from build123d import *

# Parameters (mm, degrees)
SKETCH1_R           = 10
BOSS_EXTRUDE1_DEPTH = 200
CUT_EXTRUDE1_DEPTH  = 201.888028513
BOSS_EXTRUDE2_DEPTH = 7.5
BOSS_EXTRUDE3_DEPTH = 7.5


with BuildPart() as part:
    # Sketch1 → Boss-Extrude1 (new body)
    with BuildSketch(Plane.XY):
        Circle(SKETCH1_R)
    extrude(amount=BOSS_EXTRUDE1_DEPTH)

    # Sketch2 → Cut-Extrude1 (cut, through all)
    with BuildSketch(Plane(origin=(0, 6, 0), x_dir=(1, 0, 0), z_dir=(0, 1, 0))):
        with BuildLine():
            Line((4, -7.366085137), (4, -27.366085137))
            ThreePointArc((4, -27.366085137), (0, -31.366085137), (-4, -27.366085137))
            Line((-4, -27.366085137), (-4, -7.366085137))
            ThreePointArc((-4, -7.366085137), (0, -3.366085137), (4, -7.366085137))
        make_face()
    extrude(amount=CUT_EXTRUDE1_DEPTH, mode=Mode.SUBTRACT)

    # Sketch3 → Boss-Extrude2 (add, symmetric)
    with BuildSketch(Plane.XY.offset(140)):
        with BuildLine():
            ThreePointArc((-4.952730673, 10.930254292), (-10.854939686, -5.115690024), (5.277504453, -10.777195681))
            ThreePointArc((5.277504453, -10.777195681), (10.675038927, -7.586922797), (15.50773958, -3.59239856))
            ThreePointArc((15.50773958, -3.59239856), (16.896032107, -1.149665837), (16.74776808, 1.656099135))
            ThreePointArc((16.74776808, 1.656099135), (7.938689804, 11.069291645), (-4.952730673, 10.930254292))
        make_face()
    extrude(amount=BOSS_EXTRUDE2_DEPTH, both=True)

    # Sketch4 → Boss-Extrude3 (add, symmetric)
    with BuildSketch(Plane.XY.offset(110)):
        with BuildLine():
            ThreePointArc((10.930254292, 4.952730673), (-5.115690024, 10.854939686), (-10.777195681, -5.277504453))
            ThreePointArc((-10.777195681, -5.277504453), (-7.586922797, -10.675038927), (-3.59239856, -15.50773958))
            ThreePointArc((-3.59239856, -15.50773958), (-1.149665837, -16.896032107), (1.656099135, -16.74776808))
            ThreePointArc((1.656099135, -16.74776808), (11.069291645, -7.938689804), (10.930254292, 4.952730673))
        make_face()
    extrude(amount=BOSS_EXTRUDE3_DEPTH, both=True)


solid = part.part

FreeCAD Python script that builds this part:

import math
import FreeCAD as App
import Part
import Sketcher
from FreeCAD import Vector

doc = App.newDocument("Part")
body = doc.addObject("PartDesign::Body", "Body")

sketch1 = body.newObject("Sketcher::SketchObject", "Sketch")
sketch1.AttachmentSupport = (doc.getObject("XY_Plane"), [""])
sketch1.MapMode = "FlatFace"
sketch1.addGeometry(Part.Circle(Vector(0, 0, 0), Vector(0, 0, 1), 10), False)
sketch1.addConstraint([
    Sketcher.Constraint("Coincident", 0, 3, -1, 1),
    Sketcher.Constraint("Diameter", 0, 20.0),
])
pad1 = body.newObject("PartDesign::Pad", "Pad")
pad1.Profile = sketch1
pad1.Length = 200

sketch2 = body.newObject("Sketcher::SketchObject", "Sketch001")
sketch2.AttachmentSupport = (doc.getObject("XZ_Plane"), [""])
sketch2.MapMode = "FlatFace"
sketch2.AttachmentOffset = App.Placement(Vector(0, 0, -6), App.Rotation())
sketch2.addGeometry([
    Part.LineSegment(Vector(4, 27.366085, 0), Vector(4, 7.366085, 0)),
    Part.ArcOfCircle(Part.Circle(Vector(0, 7.366085, 0), Vector(0, 0, 1), 4), math.radians(180), math.radians(360)),
    Part.LineSegment(Vector(-4, 7.366085, 0), Vector(-4, 27.366085, 0)),
    Part.ArcOfCircle(Part.Circle(Vector(0, 27.366085, 0), Vector(0, 0, 1), 4), math.radians(0), math.radians(180)),
], False)
sketch2.addConstraint([
    Sketcher.Constraint("Tangent", 0, 2, 1, 2),
    Sketcher.Constraint("Tangent", 1, 1, 2, 1),
    Sketcher.Constraint("Tangent", 2, 2, 3, 2),
    Sketcher.Constraint("Tangent", 3, 1, 0, 1),
    Sketcher.Constraint("Vertical", 0),
    Sketcher.Constraint("Vertical", 2),
    Sketcher.Constraint("PointOnObject", 1, 3, -2),
    Sketcher.Constraint("Radius", 1, 4.0),
    Sketcher.Constraint("DistanceY", 0, 2, 0, 1, 20.0),
    Sketcher.Constraint("DistanceY", -1, 1, 1, 3, 7.366085),
])
pocket1 = body.newObject("PartDesign::Pocket", "Pocket")
pocket1.Profile = sketch2
pocket1.Type = "ThroughAll"

sketch3 = body.newObject("Sketcher::SketchObject", "Sketch002")
sketch3.AttachmentSupport = (doc.getObject("XY_Plane"), [""])
sketch3.MapMode = "FlatFace"
sketch3.AttachmentOffset = App.Placement(Vector(0, 0, 140), App.Rotation())
sketch3.addGeometry([
    Part.ArcOfCircle(Part.Circle(Vector(0, 0, 0), Vector(0, 0, 1), 12), math.radians(114.376291), math.radians(296.090613)),
    Part.ArcOfCircle(Part.Circle(Vector(-12.314177, 25.14679, 0), Vector(0, 0, 1), 40), math.radians(-63.909387), math.radians(-45.929105)),
    Part.ArcOfCircle(Part.Circle(Vector(12.03, 0, 0), Vector(0, 0, 1), 5), math.radians(-45.929105), math.radians(19.342831)),
    Part.ArcOfCircle(Part.Circle(Vector(1.65091, -3.643418, 0), Vector(0, 0, 1), 16), math.radians(19.342831), math.radians(114.376291)),
], False)
sketch3.addConstraint([
    Sketcher.Constraint("Tangent", 0, 2, 1, 1),
    Sketcher.Constraint("Tangent", 1, 2, 2, 1),
    Sketcher.Constraint("Tangent", 2, 2, 3, 1),
    Sketcher.Constraint("Tangent", 3, 2, 0, 1),
    Sketcher.Constraint("Coincident", 0, 3, -1, 1),
    Sketcher.Constraint("PointOnObject", 2, 3, -1),
    Sketcher.Constraint("Radius", 0, 12.0),
    Sketcher.Constraint("Radius", 1, 40.0),
    Sketcher.Constraint("Radius", 2, 5.0),
    Sketcher.Constraint("Radius", 3, 16.0),
    Sketcher.Constraint("DistanceX", -1, 1, 2, 3, 12.03),
])
pad2 = body.newObject("PartDesign::Pad", "Pad001")
pad2.Profile = sketch3
pad2.Length = 15
pad2.Midplane = True

sketch4 = body.newObject("Sketcher::SketchObject", "Sketch003")
sketch4.AttachmentSupport = (doc.getObject("XY_Plane"), [""])
sketch4.MapMode = "FlatFace"
sketch4.AttachmentOffset = App.Placement(Vector(0, 0, 110), App.Rotation())
sketch4.addGeometry([
    Part.ArcOfCircle(Part.Circle(Vector(0, 0, 0), Vector(0, 0, 1), 12), math.radians(24.376291), math.radians(206.090613)),
    Part.ArcOfCircle(Part.Circle(Vector(25.14679, 12.314177, 0), Vector(0, 0, 1), 40), math.radians(-153.909387), math.radians(-135.929105)),
    Part.ArcOfCircle(Part.Circle(Vector(0, -12.03, 0), Vector(0, 0, 1), 5), math.radians(-135.929105), math.radians(-70.657169)),
    Part.ArcOfCircle(Part.Circle(Vector(-3.643418, -1.65091, 0), Vector(0, 0, 1), 16), math.radians(-70.657169), math.radians(24.376291)),
], False)
sketch4.addConstraint([
    Sketcher.Constraint("Tangent", 0, 2, 1, 1),
    Sketcher.Constraint("Tangent", 1, 2, 2, 1),
    Sketcher.Constraint("Tangent", 2, 2, 3, 1),
    Sketcher.Constraint("Tangent", 3, 2, 0, 1),
    Sketcher.Constraint("Coincident", 0, 3, -1, 1),
    Sketcher.Constraint("PointOnObject", 2, 3, -2),
    Sketcher.Constraint("Radius", 0, 12.0),
    Sketcher.Constraint("Radius", 1, 40.0),
    Sketcher.Constraint("Radius", 2, 5.0),
    Sketcher.Constraint("Radius", 3, 16.0),
    Sketcher.Constraint("DistanceY", 2, 3, -1, 1, 12.03),
])
pad3 = body.newObject("PartDesign::Pad", "Pad002")
pad3.Profile = sketch4
pad3.Length = 15
pad3.Midplane = True

doc.recompute()
